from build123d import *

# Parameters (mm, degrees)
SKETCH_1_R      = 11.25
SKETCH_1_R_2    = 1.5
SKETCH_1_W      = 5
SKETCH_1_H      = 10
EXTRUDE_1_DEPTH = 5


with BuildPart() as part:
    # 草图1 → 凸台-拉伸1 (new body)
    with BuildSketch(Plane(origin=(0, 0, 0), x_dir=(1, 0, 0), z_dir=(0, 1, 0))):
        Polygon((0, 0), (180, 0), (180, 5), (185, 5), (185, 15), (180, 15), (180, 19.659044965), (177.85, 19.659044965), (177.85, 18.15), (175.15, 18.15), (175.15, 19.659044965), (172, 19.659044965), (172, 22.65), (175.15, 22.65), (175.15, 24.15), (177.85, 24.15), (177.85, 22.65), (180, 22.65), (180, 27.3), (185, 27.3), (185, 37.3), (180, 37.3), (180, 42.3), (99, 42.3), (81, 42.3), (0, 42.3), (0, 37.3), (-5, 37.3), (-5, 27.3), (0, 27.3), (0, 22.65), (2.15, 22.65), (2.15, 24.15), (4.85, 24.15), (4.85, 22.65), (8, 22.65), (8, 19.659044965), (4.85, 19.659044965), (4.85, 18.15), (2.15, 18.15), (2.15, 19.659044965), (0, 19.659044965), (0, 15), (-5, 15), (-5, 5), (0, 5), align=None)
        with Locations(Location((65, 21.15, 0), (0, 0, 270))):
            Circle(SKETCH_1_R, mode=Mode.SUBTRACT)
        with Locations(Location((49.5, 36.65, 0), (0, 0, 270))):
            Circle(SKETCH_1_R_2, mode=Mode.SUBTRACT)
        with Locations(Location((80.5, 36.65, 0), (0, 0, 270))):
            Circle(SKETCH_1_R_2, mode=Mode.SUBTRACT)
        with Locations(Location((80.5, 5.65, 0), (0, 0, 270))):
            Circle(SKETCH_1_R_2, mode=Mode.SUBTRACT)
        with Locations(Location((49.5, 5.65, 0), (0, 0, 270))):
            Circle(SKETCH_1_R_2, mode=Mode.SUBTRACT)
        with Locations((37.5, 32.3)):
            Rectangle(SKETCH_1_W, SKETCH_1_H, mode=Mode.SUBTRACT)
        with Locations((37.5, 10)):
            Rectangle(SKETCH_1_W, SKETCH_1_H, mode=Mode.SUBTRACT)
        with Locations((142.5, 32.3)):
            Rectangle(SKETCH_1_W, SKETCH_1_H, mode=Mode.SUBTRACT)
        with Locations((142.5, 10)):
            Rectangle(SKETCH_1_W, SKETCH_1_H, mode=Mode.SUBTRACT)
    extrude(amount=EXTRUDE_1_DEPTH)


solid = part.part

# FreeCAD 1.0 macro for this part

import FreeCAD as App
import Part
import Sketcher
Q = App.Units.Quantity

doc = App.newDocument("Part")
body = doc.addObject("PartDesign::Body", "Body")

sketch1 = body.newObject("Sketcher::SketchObject", "Sketch")
sketch1.AttachmentSupport = (doc.getObject("XZ_Plane"), [""])
sketch1.MapMode = "FlatFace"
sketch1.addGeometry([
    Part.LineSegment(App.Vector(0, 0, 0), App.Vector(180, 0, 0)),
    Part.LineSegment(App.Vector(180, 0, 0), App.Vector(180, -5, 0)),
    Part.LineSegment(App.Vector(180, -5, 0), App.Vector(185, -5, 0)),
    Part.LineSegment(App.Vector(185, -5, 0), App.Vector(185, -15, 0)),
    Part.LineSegment(App.Vector(185, -15, 0), App.Vector(180, -15, 0)),
    Part.LineSegment(App.Vector(180, -15, 0), App.Vector(180, -19.7, 0)),
    Part.LineSegment(App.Vector(180, -19.7, 0), App.Vector(177.8, -19.7, 0)),
    Part.LineSegment(App.Vector(177.8, -19.7, 0), App.Vector(177.8, -18.1, 0)),
    Part.LineSegment(App.Vector(177.8, -18.1, 0), App.Vector(175.2, -18.1, 0)),
    Part.LineSegment(App.Vector(175.2, -18.1, 0), App.Vector(175.2, -19.7, 0)),
    Part.LineSegment(App.Vector(175.2, -19.7, 0), App.Vector(172, -19.7, 0)),
    Part.LineSegment(App.Vector(172, -19.7, 0), App.Vector(172, -22.6, 0)),
    Part.LineSegment(App.Vector(172, -22.6, 0), App.Vector(175.2, -22.6, 0)),
    Part.LineSegment(App.Vector(175.2, -22.6, 0), App.Vector(175.2, -24.1, 0)),
    Part.LineSegment(App.Vector(175.2, -24.1, 0), App.Vector(177.8, -24.1, 0)),
    Part.LineSegment(App.Vector(177.8, -24.1, 0), App.Vector(177.8, -22.6, 0)),
    Part.LineSegment(App.Vector(177.8, -22.6, 0), App.Vector(180, -22.6, 0)),
    Part.LineSegment(App.Vector(180, -22.6, 0), App.Vector(180, -27.3, 0)),
    Part.LineSegment(App.Vector(180, -27.3, 0), App.Vector(185, -27.3, 0)),
    Part.LineSegment(App.Vector(185, -27.3, 0), App.Vector(185, -37.3, 0)),
    Part.LineSegment(App.Vector(185, -37.3, 0), App.Vector(180, -37.3, 0)),
    Part.LineSegment(App.Vector(180, -37.3, 0), App.Vector(180, -42.3, 0)),
    Part.LineSegment(App.Vector(180, -42.3, 0), App.Vector(0, -42.3, 0)),
    Part.LineSegment(App.Vector(0, -42.3, 0), App.Vector(0, -37.3, 0)),
    Part.LineSegment(App.Vector(0, -37.3, 0), App.Vector(-5, -37.3, 0)),
    Part.LineSegment(App.Vector(-5, -37.3, 0), App.Vector(-5, -27.3, 0)),
    Part.LineSegment(App.Vector(-5, -27.3, 0), App.Vector(0, -27.3, 0)),
    Part.LineSegment(App.Vector(0, -27.3, 0), App.Vector(0, -22.6, 0)),
    Part.LineSegment(App.Vector(0, -22.6, 0), App.Vector(2.1, -22.6, 0)),
    Part.LineSegment(App.Vector(2.1, -22.6, 0), App.Vector(2.1, -24.1, 0)),
    Part.LineSegment(App.Vector(2.1, -24.1, 0), App.Vector(4.8, -24.1, 0)),
    Part.LineSegment(App.Vector(4.8, -24.1, 0), App.Vector(4.8, -22.6, 0)),
    Part.LineSegment(App.Vector(4.8, -22.6, 0), App.Vector(8, -22.6, 0)),
    Part.LineSegment(App.Vector(8, -22.6, 0), App.Vector(8, -19.7, 0)),
    Part.LineSegment(App.Vector(8, -19.7, 0), App.Vector(4.8, -19.7, 0)),
    Part.LineSegment(App.Vector(4.8, -19.7, 0), App.Vector(4.8, -18.1, 0)),
    Part.LineSegment(App.Vector(4.8, -18.1, 0), App.Vector(2.1, -18.1, 0)),
    Part.LineSegment(App.Vector(2.1, -18.1, 0), App.Vector(2.1, -19.7, 0)),
    Part.LineSegment(App.Vector(2.1, -19.7, 0), App.Vector(0, -19.7, 0)),
    Part.LineSegment(App.Vector(0, -19.7, 0), App.Vector(0, -15, 0)),
    Part.LineSegment(App.Vector(0, -15, 0), App.Vector(-5, -15, 0)),
    Part.LineSegment(App.Vector(-5, -15, 0), App.Vector(-5, -5, 0)),
    Part.LineSegment(App.Vector(-5, -5, 0), App.Vector(0, -5, 0)),
    Part.LineSegment(App.Vector(0, -5, 0), App.Vector(0, 0, 0)),
    Part.Circle(App.Vector(49.5, -5.7, 0), App.Vector(0, 0, 1), 1.5),
    Part.LineSegment(App.Vector(40, -5, 0), App.Vector(35, -5, 0)),
    Part.LineSegment(App.Vector(35, -5, 0), App.Vector(35, -15, 0)),
    Part.LineSegment(App.Vector(35, -15, 0), App.Vector(40, -15, 0)),
    Part.LineSegment(App.Vector(40, -15, 0), App.Vector(40, -5, 0)),
    Part.Circle(App.Vector(80.5, -5.7, 0), App.Vector(0, 0, 1), 1.5),
    Part.LineSegment(App.Vector(145, -5, 0), App.Vector(140, -5, 0)),
    Part.LineSegment(App.Vector(140, -5, 0), App.Vector(140, -15, 0)),
    Part.LineSegment(App.Vector(140, -15, 0), App.Vector(145, -15, 0)),
    Part.LineSegment(App.Vector(145, -15, 0), App.Vector(145, -5, 0)),
    Part.Circle(App.Vector(65, -21.1, 0), App.Vector(0, 0, 1), 11.2),
    Part.LineSegment(App.Vector(40, -27.3, 0), App.Vector(35, -27.3, 0)),
    Part.LineSegment(App.Vector(35, -27.3, 0), App.Vector(35, -37.3, 0)),
    Part.LineSegment(App.Vector(35, -37.3, 0), App.Vector(40, -37.3, 0)),
    Part.LineSegment(App.Vector(40, -37.3, 0), App.Vector(40, -27.3, 0)),
    Part.Circle(App.Vector(49.5, -36.6, 0), App.Vector(0, 0, 1), 1.5),
    Part.Circle(App.Vector(80.5, -36.6, 0), App.Vector(0, 0, 1), 1.5),
    Part.LineSegment(App.Vector(145, -27.3, 0), App.Vector(140, -27.3, 0)),
    Part.LineSegment(App.Vector(140, -27.3, 0), App.Vector(140, -37.3, 0)),
    Part.LineSegment(App.Vector(140, -37.3, 0), App.Vector(145, -37.3, 0)),
    Part.LineSegment(App.Vector(145, -37.3, 0), App.Vector(145, -27.3, 0)),
], False)
sketch1.addConstraint([
    Sketcher.Constraint("Coincident", 0, 2, 1, 1),
    Sketcher.Constraint("Coincident", 1, 2, 2, 1),
    Sketcher.Constraint("Coincident", 2, 2, 3, 1),
    Sketcher.Constraint("Coincident", 3, 2, 4, 1),
    Sketcher.Constraint("Coincident", 4, 2, 5, 1),
    Sketcher.Constraint("Coincident", 5, 2, 6, 1),
    Sketcher.Constraint("Coincident", 6, 2, 7, 1),
    Sketcher.Constraint("Coincident", 7, 2, 8, 1),
    Sketcher.Constraint("Coincident", 8, 2, 9, 1),
    Sketcher.Constraint("Coincident", 9, 2, 10, 1),
    Sketcher.Constraint("Coincident", 10, 2, 11, 1),
    Sketcher.Constraint("Coincident", 11, 2, 12, 1),
    Sketcher.Constraint("Coincident", 12, 2, 13, 1),
    Sketcher.Constraint("Coincident", 13, 2, 14, 1),
    Sketcher.Constraint("Coincident", 14, 2, 15, 1),
    Sketcher.Constraint("Coincident", 15, 2, 16, 1),
    Sketcher.Constraint("Coincident", 16, 2, 17, 1),
    Sketcher.Constraint("Coincident", 17, 2, 18, 1),
    Sketcher.Constraint("Coincident", 18, 2, 19, 1),
    Sketcher.Constraint("Coincident", 19, 2, 20, 1),
    Sketcher.Constraint("Coincident", 20, 2, 21, 1),
    Sketcher.Constraint("Coincident", 21, 2, 22, 1),
    Sketcher.Constraint("Coincident", 22, 2, 23, 1),
    Sketcher.Constraint("Coincident", 23, 2, 24, 1),
    Sketcher.Constraint("Coincident", 24, 2, 25, 1),
    Sketcher.Constraint("Coincident", 25, 2, 26, 1),
    Sketcher.Constraint("Coincident", 26, 2, 27, 1),
    Sketcher.Constraint("Coincident", 27, 2, 28, 1),
    Sketcher.Constraint("Coincident", 28, 2, 29, 1),
    Sketcher.Constraint("Coincident", 29, 2, 30, 1),
    Sketcher.Constraint("Coincident", 30, 2, 31, 1),
    Sketcher.Constraint("Coincident", 31, 2, 32, 1),
    Sketcher.Constraint("Coincident", 32, 2, 33, 1),
    Sketcher.Constraint("Coincident", 33, 2, 34, 1),
    Sketcher.Constraint("Coincident", 34, 2, 35, 1),
    Sketcher.Constraint("Coincident", 35, 2, 36, 1),
    Sketcher.Constraint("Coincident", 36, 2, 37, 1),
    Sketcher.Constraint("Coincident", 37, 2, 38, 1),
    Sketcher.Constraint("Coincident", 38, 2, 39, 1),
    Sketcher.Constraint("Coincident", 39, 2, 40, 1),
    Sketcher.Constraint("Coincident", 40, 2, 41, 1),
    Sketcher.Constraint("Coincident", 41, 2, 42, 1),
    Sketcher.Constraint("Coincident", 42, 2, 43, 1),
    Sketcher.Constraint("Coincident", 43, 2, 0, 1),
    Sketcher.Constraint("Coincident", 45, 2, 46, 1),
    Sketcher.Constraint("Coincident", 46, 2, 47, 1),
    Sketcher.Constraint("Coincident", 47, 2, 48, 1),
    Sketcher.Constraint("Coincident", 48, 2, 45, 1),
    Sketcher.Constraint("Coincident", 50, 2, 51, 1),
    Sketcher.Constraint("Coincident", 51, 2, 52, 1),
    Sketcher.Constraint("Coincident", 52, 2, 53, 1),
    Sketcher.Constraint("Coincident", 53, 2, 50, 1),
    Sketcher.Constraint("Coincident", 55, 2, 56, 1),
    Sketcher.Constraint("Coincident", 56, 2, 57, 1),
    Sketcher.Constraint("Coincident", 57, 2, 58, 1),
    Sketcher.Constraint("Coincident", 58, 2, 55, 1),
    Sketcher.Constraint("Coincident", 61, 2, 62, 1),
    Sketcher.Constraint("Coincident", 62, 2, 63, 1),
    Sketcher.Constraint("Coincident", 63, 2, 64, 1),
    Sketcher.Constraint("Coincident", 64, 2, 61, 1),
    Sketcher.Constraint("Horizontal", 0),
    Sketcher.Constraint("Vertical", 1),
    Sketcher.Constraint("Horizontal", 2),
    Sketcher.Constraint("Vertical", 3),
    Sketcher.Constraint("Horizontal", 4),
    Sketcher.Constraint("Vertical", 5),
    Sketcher.Constraint("Horizontal", 6),
    Sketcher.Constraint("Vertical", 7),
    Sketcher.Constraint("Horizontal", 8),
    Sketcher.Constraint("Vertical", 9),
    Sketcher.Constraint("Horizontal", 10),
    Sketcher.Constraint("Vertical", 11),
    Sketcher.Constraint("Horizontal", 12),
    Sketcher.Constraint("Vertical", 13),
    Sketcher.Constraint("Horizontal", 14),
    Sketcher.Constraint("Vertical", 15),
    Sketcher.Constraint("Horizontal", 16),
    Sketcher.Constraint("Vertical", 17),
    Sketcher.Constraint("Horizontal", 18),
    Sketcher.Constraint("Vertical", 19),
    Sketcher.Constraint("Horizontal", 20),
    Sketcher.Constraint("Vertical", 21),
    Sketcher.Constraint("Horizontal", 22),
    Sketcher.Constraint("Vertical", 23),
    Sketcher.Constraint("Horizontal", 24),
    Sketcher.Constraint("Vertical", 25),
    Sketcher.Constraint("Horizontal", 26),
    Sketcher.Constraint("Vertical", 27),
    Sketcher.Constraint("Horizontal", 28),
    Sketcher.Constraint("Vertical", 29),
    Sketcher.Constraint("Horizontal", 30),
    Sketcher.Constraint("Vertical", 31),
    Sketcher.Constraint("Horizontal", 32),
    Sketcher.Constraint("Vertical", 33),
    Sketcher.Constraint("Horizontal", 34),
    Sketcher.Constraint("Vertical", 35),
    Sketcher.Constraint("Horizontal", 36),
    Sketcher.Constraint("Vertical", 37),
    Sketcher.Constraint("Horizontal", 38),
    Sketcher.Constraint("Vertical", 39),
    Sketcher.Constraint("Horizontal", 40),
    Sketcher.Constraint("Vertical", 41),
    Sketcher.Constraint("Horizontal", 42),
    Sketcher.Constraint("Vertical", 43),
    Sketcher.Constraint("Horizontal", 45),
    Sketcher.Constraint("Vertical", 46),
    Sketcher.Constraint("Horizontal", 47),
    Sketcher.Constraint("Vertical", 48),
    Sketcher.Constraint("Horizontal", 50),
    Sketcher.Constraint("Vertical", 51),
    Sketcher.Constraint("Horizontal", 52),
    Sketcher.Constraint("Vertical", 53),
    Sketcher.Constraint("Horizontal", 55),
    Sketcher.Constraint("Vertical", 56),
    Sketcher.Constraint("Horizontal", 57),
    Sketcher.Constraint("Vertical", 58),
    Sketcher.Constraint("Horizontal", 61),
    Sketcher.Constraint("Vertical", 62),
    Sketcher.Constraint("Horizontal", 63),
    Sketcher.Constraint("Vertical", 64),
    Sketcher.Constraint("Coincident", 43, 2, -1, 1),
    Sketcher.Constraint("Equal", 44, 49),
    Sketcher.Constraint("Equal", 49, 59),
    Sketcher.Constraint("Equal", 59, 60),
    Sketcher.Constraint("PointOnObject", 22, 2, -2),
    Sketcher.Constraint("PointOnObject", 26, 2, -2),
    Sketcher.Constraint("PointOnObject", 38, 2, -2),
    Sketcher.Constraint("Horizontal", 44, 3, 49, 3),
    Sketcher.Constraint("Horizontal", 59, 3, 60, 3),
    Sketcher.Constraint("Horizontal", 6, 2, 9, 2),
    Sketcher.Constraint("Horizontal", 12, 2, 15, 2),
    Sketcher.Constraint("Horizontal", 20, 2, 23, 2),
    Sketcher.Constraint("Horizontal", 18, 2, 25, 2),
    Sketcher.Constraint("Horizontal", 16, 2, 27, 2),
    Sketcher.Constraint("Horizontal", 14, 2, 29, 2),
    Sketcher.Constraint("Horizontal", 28, 2, 31, 2),
    Sketcher.Constraint("Horizontal", 10, 2, 33, 2),
    Sketcher.Constraint("Horizontal", 8, 2, 35, 2),
    Sketcher.Constraint("Horizontal", 34, 2, 37, 2),
    Sketcher.Constraint("Horizontal", 4, 2, 39, 2),
    Sketcher.Constraint("Horizontal", 2, 2, 41, 2),
    Sketcher.Constraint("Horizontal", 42, 2, 45, 2),
    Sketcher.Constraint("Horizontal", 40, 2, 46, 2),
    Sketcher.Constraint("Horizontal", 48, 2, 50, 2),
    Sketcher.Constraint("Horizontal", 47, 2, 51, 2),
    Sketcher.Constraint("Horizontal", 26, 2, 55, 2),
    Sketcher.Constraint("Horizontal", 24, 2, 56, 2),
    Sketcher.Constraint("Horizontal", 58, 2, 61, 2),
    Sketcher.Constraint("Horizontal", 57, 2, 62, 2),
    Sketcher.Constraint("Vertical", 44, 3, 59, 3),
    Sketcher.Constraint("Vertical", 49, 3, 60, 3),
    Sketcher.Constraint("Vertical", 1, 2, 4, 2),
    Sketcher.Constraint("Vertical", 9, 2, 12, 2),
    Sketcher.Constraint("Vertical", 7, 2, 14, 2),
    Sketcher.Constraint("Vertical", 5, 2, 16, 2),
    Sketcher.Constraint("Vertical", 3, 2, 18, 2),
    Sketcher.Constraint("Vertical", 17, 2, 20, 2),
    Sketcher.Constraint("Vertical", 31, 2, 34, 2),
    Sketcher.Constraint("Vertical", 29, 2, 36, 2),
    Sketcher.Constraint("Vertical", 25, 2, 40, 2),
    Sketcher.Constraint("Vertical", 46, 2, 55, 2),
    Sketcher.Constraint("Vertical", 48, 2, 57, 2),
    Sketcher.Constraint("Vertical", 51, 2, 61, 2),
    Sketcher.Constraint("Vertical", 53, 2, 63, 2),
    Sketcher.Constraint("Equal", 20, 24),
    Sketcher.Constraint("Equal", 16, 28),
    Sketcher.Constraint("Equal", 14, 30),
    Sketcher.Constraint("Equal", 12, 32),
    Sketcher.Constraint("Equal", 42, 45),
    Sketcher.Constraint("Equal", 47, 50),
    Sketcher.Constraint("Equal", 63, 1),
    Sketcher.Constraint("Equal", 3, 19),
    Sketcher.Constraint("Equal", 1, 21),
    Sketcher.Constraint("Diameter", 44, Q("3 mm")),
    Sketcher.Constraint("Diameter", 54, Q("22.5 mm")),
    Sketcher.Constraint("DistanceX", 0, 1, 0, 2, Q("180 mm")),
    Sketcher.Constraint("DistanceX", 2, 1, 2, 2, Q("5 mm")),
    Sketcher.Constraint("DistanceY", 3, 2, 3, 1, Q("10 mm")),
    Sketcher.Constraint("DistanceX", 8, 2, 8, 1, Q("2.7 mm")),
    Sketcher.Constraint("DistanceY", 13, 2, 13, 1, Q("1.5 mm")),
    Sketcher.Constraint("DistanceX", -1, 1, 54, 3, Q("65 mm")),
    Sketcher.Constraint("DistanceX", -1, 1, 10, 2, Q("172 mm")),
    Sketcher.Constraint("DistanceX", -1, 1, 45, 2, Q("35 mm")),
    Sketcher.Constraint("DistanceX", -1, 1, 50, 2, Q("140 mm")),
    Sketcher.Constraint("DistanceX", 6, 2, 6, 1, Q("2.15 mm")),
    Sketcher.Constraint("DistanceY", 17, 2, 17, 1, Q("4.65 mm")),
    Sketcher.Constraint("DistanceX", -1, 1, 44, 3, Q("49.5 mm")),
    Sketcher.Constraint("DistanceX", -1, 1, 49, 3, Q("80.5 mm")),
    Sketcher.Constraint("DistanceY", 17, 2, -1, 1, Q("27.3 mm")),
    Sketcher.Constraint("DistanceY", 44, 3, -1, 1, Q("5.65 mm")),
    Sketcher.Constraint("DistanceY", 54, 3, -1, 1, Q("21.15 mm")),
    Sketcher.Constraint("DistanceY", 59, 3, -1, 1, Q("36.65 mm")),
    Sketcher.Constraint("DistanceY", 7, 2, -1, 1, Q("18.15 mm")),
    Sketcher.Constraint("DistanceY", 5, 2, 5, 1, Q("4.659045 mm")),
])
pad1 = body.newObject("PartDesign::Pad", "Pad")
pad1.Profile = sketch1
pad1.Length = 5
pad1.Reversed = True

doc.recompute()
